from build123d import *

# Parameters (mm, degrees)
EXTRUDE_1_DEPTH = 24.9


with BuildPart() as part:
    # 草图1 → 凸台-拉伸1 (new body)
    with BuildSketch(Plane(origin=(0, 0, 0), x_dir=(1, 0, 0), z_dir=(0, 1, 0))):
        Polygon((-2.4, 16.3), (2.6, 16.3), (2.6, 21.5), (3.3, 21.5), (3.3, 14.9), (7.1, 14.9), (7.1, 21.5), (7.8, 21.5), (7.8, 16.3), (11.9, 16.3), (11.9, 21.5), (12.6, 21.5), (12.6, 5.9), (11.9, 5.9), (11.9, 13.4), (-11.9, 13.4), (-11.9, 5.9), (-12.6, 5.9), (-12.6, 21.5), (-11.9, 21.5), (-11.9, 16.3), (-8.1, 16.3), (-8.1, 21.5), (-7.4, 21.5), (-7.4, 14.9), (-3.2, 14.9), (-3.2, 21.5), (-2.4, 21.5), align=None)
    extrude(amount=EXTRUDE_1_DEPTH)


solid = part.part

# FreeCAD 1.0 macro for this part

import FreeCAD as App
import Part
import Sketcher
Q = App.Units.Quantity


def add_polygon(sketch, points):
    """Adds a closed chain of lines whose ends are joined by coincident constraints."""
    first, n = sketch.GeometryCount, len(points)
    for a, b in zip(points, points[1:] + points[:1]):
        sketch.addGeometry(Part.LineSegment(App.Vector(*a, 0), App.Vector(*b, 0)), False)
    for i in range(n):
        sketch.addConstraint(Sketcher.Constraint("Coincident", first + i, 2, first + (i + 1) % n, 1))

doc = App.newDocument("Part")
body = doc.addObject("PartDesign::Body", "Body")

# Sketch on XZ plane
sketch1 = body.newObject("Sketcher::SketchObject", "Sketch")
sketch1.AttachmentSupport = (doc.getObject("XZ_Plane"), [""])
sketch1.MapMode = "FlatFace"
add_polygon(sketch1, [(2.6, -16.3), (-2.4, -16.3), (-2.4, -21.5), (-3.2, -21.5), (-3.2, -14.9), (-7.4, -14.9), (-7.4, -21.5), (-8.1, -21.5), (-8.1, -16.3), (-11.9, -16.3), (-11.9, -21.5), (-12.6, -21.5), (-12.6, -5.9), (-11.9, -5.9), (-11.9, -13.4), (11.9, -13.4), (11.9, -5.9), (12.6, -5.9), (12.6, -21.5), (11.9, -21.5), (11.9, -16.3), (7.8, -16.3), (7.8, -21.5), (7.1, -21.5), (7.1, -14.9), (3.3, -14.9), (3.3, -21.5), (2.6, -21.5)])  # lines 0-27
sketch1.addConstraint(Sketcher.Constraint("Horizontal", 0))
sketch1.addConstraint(Sketcher.Constraint("Vertical", 1))
sketch1.addConstraint(Sketcher.Constraint("Horizontal", 2))
sketch1.addConstraint(Sketcher.Constraint("Vertical", 3))
sketch1.addConstraint(Sketcher.Constraint("Horizontal", 4))
sketch1.addConstraint(Sketcher.Constraint("Vertical", 5))
sketch1.addConstraint(Sketcher.Constraint("Horizontal", 6))
sketch1.addConstraint(Sketcher.Constraint("Vertical", 7))
sketch1.addConstraint(Sketcher.Constraint("Horizontal", 8))
sketch1.addConstraint(Sketcher.Constraint("Vertical", 9))
sketch1.addConstraint(Sketcher.Constraint("Horizontal", 10))
sketch1.addConstraint(Sketcher.Constraint("Vertical", 11))
sketch1.addConstraint(Sketcher.Constraint("Horizontal", 12))
sketch1.addConstraint(Sketcher.Constraint("Vertical", 13))
sketch1.addConstraint(Sketcher.Constraint("Horizontal", 14))
sketch1.addConstraint(Sketcher.Constraint("Vertical", 15))
sketch1.addConstraint(Sketcher.Constraint("Horizontal", 16))
sketch1.addConstraint(Sketcher.Constraint("Vertical", 17))
sketch1.addConstraint(Sketcher.Constraint("Horizontal", 18))
sketch1.addConstraint(Sketcher.Constraint("Vertical", 19))
sketch1.addConstraint(Sketcher.Constraint("Horizontal", 20))
sketch1.addConstraint(Sketcher.Constraint("Vertical", 21))
sketch1.addConstraint(Sketcher.Constraint("Horizontal", 22))
sketch1.addConstraint(Sketcher.Constraint("Vertical", 23))
sketch1.addConstraint(Sketcher.Constraint("Horizontal", 24))
sketch1.addConstraint(Sketcher.Constraint("Vertical", 25))
sketch1.addConstraint(Sketcher.Constraint("Horizontal", 26))
sketch1.addConstraint(Sketcher.Constraint("Vertical", 27))
sketch1.addConstraint(Sketcher.Constraint("Symmetric", 12, 2, 15, 2, -2))
sketch1.addConstraint(Sketcher.Constraint("Symmetric", 10, 2, 17, 2, -2))
sketch1.addConstraint(Sketcher.Constraint("Symmetric", 8, 2, 19, 2, -2))
sketch1.addConstraint(Sketcher.Constraint("Horizontal", 2, 2, 5, 2))
sketch1.addConstraint(Sketcher.Constraint("Horizontal", 0, 2, 7, 2))
sketch1.addConstraint(Sketcher.Constraint("Horizontal", 6, 2, 9, 2))
sketch1.addConstraint(Sketcher.Constraint("Horizontal", 18, 2, 21, 2))
sketch1.addConstraint(Sketcher.Constraint("Horizontal", 4, 2, 23, 2))
sketch1.addConstraint(Sketcher.Constraint("Horizontal", 22, 2, 25, 2))
sketch1.addConstraint(Sketcher.Constraint("Vertical", 9, 2, 12, 2))
sketch1.addConstraint(Sketcher.Constraint("Equal", 6, 10))
sketch1.addConstraint(Sketcher.Constraint("Equal", 18, 22))
sketch1.addConstraint(Sketcher.Constraint("Equal", 8, 24))
sketch1.addConstraint(Sketcher.Constraint("Equal", 22, 26))
sketch1.addConstraint(Sketcher.Constraint("DistanceX", 0, 2, 0, 1, Q("5 mm")))
sketch1.addConstraint(Sketcher.Constraint("DistanceX", 2, 2, 2, 1, Q("0.8 mm")))
sketch1.addConstraint(Sketcher.Constraint("DistanceX", 4, 2, 4, 1, Q("4.2 mm")))
sketch1.addConstraint(Sketcher.Constraint("DistanceX", 6, 2, 6, 1, Q("0.7 mm")))
sketch1.addConstraint(Sketcher.Constraint("DistanceX", 8, 2, 8, 1, Q("3.8 mm")))
sketch1.addConstraint(Sketcher.Constraint("DistanceX", 14, 1, 14, 2, Q("23.8 mm")))
sketch1.addConstraint(Sketcher.Constraint("DistanceY", 1, 2, 1, 1, Q("5.2 mm")))
sketch1.addConstraint(Sketcher.Constraint("DistanceY", 3, 1, 3, 2, Q("6.6 mm")))
sketch1.addConstraint(Sketcher.Constraint("DistanceY", 11, 1, 11, 2, Q("15.6 mm")))
sketch1.addConstraint(Sketcher.Constraint("DistanceY", 13, 2, 13, 1, Q("7.5 mm")))
sketch1.addConstraint(Sketcher.Constraint("DistanceY", 0, 2, -1, 1, Q("16.3 mm")))
pad1 = body.newObject("PartDesign::Pad", "Pad")
pad1.Profile = sketch1
pad1.Length = 24.9
pad1.Reversed = True

doc.recompute()
